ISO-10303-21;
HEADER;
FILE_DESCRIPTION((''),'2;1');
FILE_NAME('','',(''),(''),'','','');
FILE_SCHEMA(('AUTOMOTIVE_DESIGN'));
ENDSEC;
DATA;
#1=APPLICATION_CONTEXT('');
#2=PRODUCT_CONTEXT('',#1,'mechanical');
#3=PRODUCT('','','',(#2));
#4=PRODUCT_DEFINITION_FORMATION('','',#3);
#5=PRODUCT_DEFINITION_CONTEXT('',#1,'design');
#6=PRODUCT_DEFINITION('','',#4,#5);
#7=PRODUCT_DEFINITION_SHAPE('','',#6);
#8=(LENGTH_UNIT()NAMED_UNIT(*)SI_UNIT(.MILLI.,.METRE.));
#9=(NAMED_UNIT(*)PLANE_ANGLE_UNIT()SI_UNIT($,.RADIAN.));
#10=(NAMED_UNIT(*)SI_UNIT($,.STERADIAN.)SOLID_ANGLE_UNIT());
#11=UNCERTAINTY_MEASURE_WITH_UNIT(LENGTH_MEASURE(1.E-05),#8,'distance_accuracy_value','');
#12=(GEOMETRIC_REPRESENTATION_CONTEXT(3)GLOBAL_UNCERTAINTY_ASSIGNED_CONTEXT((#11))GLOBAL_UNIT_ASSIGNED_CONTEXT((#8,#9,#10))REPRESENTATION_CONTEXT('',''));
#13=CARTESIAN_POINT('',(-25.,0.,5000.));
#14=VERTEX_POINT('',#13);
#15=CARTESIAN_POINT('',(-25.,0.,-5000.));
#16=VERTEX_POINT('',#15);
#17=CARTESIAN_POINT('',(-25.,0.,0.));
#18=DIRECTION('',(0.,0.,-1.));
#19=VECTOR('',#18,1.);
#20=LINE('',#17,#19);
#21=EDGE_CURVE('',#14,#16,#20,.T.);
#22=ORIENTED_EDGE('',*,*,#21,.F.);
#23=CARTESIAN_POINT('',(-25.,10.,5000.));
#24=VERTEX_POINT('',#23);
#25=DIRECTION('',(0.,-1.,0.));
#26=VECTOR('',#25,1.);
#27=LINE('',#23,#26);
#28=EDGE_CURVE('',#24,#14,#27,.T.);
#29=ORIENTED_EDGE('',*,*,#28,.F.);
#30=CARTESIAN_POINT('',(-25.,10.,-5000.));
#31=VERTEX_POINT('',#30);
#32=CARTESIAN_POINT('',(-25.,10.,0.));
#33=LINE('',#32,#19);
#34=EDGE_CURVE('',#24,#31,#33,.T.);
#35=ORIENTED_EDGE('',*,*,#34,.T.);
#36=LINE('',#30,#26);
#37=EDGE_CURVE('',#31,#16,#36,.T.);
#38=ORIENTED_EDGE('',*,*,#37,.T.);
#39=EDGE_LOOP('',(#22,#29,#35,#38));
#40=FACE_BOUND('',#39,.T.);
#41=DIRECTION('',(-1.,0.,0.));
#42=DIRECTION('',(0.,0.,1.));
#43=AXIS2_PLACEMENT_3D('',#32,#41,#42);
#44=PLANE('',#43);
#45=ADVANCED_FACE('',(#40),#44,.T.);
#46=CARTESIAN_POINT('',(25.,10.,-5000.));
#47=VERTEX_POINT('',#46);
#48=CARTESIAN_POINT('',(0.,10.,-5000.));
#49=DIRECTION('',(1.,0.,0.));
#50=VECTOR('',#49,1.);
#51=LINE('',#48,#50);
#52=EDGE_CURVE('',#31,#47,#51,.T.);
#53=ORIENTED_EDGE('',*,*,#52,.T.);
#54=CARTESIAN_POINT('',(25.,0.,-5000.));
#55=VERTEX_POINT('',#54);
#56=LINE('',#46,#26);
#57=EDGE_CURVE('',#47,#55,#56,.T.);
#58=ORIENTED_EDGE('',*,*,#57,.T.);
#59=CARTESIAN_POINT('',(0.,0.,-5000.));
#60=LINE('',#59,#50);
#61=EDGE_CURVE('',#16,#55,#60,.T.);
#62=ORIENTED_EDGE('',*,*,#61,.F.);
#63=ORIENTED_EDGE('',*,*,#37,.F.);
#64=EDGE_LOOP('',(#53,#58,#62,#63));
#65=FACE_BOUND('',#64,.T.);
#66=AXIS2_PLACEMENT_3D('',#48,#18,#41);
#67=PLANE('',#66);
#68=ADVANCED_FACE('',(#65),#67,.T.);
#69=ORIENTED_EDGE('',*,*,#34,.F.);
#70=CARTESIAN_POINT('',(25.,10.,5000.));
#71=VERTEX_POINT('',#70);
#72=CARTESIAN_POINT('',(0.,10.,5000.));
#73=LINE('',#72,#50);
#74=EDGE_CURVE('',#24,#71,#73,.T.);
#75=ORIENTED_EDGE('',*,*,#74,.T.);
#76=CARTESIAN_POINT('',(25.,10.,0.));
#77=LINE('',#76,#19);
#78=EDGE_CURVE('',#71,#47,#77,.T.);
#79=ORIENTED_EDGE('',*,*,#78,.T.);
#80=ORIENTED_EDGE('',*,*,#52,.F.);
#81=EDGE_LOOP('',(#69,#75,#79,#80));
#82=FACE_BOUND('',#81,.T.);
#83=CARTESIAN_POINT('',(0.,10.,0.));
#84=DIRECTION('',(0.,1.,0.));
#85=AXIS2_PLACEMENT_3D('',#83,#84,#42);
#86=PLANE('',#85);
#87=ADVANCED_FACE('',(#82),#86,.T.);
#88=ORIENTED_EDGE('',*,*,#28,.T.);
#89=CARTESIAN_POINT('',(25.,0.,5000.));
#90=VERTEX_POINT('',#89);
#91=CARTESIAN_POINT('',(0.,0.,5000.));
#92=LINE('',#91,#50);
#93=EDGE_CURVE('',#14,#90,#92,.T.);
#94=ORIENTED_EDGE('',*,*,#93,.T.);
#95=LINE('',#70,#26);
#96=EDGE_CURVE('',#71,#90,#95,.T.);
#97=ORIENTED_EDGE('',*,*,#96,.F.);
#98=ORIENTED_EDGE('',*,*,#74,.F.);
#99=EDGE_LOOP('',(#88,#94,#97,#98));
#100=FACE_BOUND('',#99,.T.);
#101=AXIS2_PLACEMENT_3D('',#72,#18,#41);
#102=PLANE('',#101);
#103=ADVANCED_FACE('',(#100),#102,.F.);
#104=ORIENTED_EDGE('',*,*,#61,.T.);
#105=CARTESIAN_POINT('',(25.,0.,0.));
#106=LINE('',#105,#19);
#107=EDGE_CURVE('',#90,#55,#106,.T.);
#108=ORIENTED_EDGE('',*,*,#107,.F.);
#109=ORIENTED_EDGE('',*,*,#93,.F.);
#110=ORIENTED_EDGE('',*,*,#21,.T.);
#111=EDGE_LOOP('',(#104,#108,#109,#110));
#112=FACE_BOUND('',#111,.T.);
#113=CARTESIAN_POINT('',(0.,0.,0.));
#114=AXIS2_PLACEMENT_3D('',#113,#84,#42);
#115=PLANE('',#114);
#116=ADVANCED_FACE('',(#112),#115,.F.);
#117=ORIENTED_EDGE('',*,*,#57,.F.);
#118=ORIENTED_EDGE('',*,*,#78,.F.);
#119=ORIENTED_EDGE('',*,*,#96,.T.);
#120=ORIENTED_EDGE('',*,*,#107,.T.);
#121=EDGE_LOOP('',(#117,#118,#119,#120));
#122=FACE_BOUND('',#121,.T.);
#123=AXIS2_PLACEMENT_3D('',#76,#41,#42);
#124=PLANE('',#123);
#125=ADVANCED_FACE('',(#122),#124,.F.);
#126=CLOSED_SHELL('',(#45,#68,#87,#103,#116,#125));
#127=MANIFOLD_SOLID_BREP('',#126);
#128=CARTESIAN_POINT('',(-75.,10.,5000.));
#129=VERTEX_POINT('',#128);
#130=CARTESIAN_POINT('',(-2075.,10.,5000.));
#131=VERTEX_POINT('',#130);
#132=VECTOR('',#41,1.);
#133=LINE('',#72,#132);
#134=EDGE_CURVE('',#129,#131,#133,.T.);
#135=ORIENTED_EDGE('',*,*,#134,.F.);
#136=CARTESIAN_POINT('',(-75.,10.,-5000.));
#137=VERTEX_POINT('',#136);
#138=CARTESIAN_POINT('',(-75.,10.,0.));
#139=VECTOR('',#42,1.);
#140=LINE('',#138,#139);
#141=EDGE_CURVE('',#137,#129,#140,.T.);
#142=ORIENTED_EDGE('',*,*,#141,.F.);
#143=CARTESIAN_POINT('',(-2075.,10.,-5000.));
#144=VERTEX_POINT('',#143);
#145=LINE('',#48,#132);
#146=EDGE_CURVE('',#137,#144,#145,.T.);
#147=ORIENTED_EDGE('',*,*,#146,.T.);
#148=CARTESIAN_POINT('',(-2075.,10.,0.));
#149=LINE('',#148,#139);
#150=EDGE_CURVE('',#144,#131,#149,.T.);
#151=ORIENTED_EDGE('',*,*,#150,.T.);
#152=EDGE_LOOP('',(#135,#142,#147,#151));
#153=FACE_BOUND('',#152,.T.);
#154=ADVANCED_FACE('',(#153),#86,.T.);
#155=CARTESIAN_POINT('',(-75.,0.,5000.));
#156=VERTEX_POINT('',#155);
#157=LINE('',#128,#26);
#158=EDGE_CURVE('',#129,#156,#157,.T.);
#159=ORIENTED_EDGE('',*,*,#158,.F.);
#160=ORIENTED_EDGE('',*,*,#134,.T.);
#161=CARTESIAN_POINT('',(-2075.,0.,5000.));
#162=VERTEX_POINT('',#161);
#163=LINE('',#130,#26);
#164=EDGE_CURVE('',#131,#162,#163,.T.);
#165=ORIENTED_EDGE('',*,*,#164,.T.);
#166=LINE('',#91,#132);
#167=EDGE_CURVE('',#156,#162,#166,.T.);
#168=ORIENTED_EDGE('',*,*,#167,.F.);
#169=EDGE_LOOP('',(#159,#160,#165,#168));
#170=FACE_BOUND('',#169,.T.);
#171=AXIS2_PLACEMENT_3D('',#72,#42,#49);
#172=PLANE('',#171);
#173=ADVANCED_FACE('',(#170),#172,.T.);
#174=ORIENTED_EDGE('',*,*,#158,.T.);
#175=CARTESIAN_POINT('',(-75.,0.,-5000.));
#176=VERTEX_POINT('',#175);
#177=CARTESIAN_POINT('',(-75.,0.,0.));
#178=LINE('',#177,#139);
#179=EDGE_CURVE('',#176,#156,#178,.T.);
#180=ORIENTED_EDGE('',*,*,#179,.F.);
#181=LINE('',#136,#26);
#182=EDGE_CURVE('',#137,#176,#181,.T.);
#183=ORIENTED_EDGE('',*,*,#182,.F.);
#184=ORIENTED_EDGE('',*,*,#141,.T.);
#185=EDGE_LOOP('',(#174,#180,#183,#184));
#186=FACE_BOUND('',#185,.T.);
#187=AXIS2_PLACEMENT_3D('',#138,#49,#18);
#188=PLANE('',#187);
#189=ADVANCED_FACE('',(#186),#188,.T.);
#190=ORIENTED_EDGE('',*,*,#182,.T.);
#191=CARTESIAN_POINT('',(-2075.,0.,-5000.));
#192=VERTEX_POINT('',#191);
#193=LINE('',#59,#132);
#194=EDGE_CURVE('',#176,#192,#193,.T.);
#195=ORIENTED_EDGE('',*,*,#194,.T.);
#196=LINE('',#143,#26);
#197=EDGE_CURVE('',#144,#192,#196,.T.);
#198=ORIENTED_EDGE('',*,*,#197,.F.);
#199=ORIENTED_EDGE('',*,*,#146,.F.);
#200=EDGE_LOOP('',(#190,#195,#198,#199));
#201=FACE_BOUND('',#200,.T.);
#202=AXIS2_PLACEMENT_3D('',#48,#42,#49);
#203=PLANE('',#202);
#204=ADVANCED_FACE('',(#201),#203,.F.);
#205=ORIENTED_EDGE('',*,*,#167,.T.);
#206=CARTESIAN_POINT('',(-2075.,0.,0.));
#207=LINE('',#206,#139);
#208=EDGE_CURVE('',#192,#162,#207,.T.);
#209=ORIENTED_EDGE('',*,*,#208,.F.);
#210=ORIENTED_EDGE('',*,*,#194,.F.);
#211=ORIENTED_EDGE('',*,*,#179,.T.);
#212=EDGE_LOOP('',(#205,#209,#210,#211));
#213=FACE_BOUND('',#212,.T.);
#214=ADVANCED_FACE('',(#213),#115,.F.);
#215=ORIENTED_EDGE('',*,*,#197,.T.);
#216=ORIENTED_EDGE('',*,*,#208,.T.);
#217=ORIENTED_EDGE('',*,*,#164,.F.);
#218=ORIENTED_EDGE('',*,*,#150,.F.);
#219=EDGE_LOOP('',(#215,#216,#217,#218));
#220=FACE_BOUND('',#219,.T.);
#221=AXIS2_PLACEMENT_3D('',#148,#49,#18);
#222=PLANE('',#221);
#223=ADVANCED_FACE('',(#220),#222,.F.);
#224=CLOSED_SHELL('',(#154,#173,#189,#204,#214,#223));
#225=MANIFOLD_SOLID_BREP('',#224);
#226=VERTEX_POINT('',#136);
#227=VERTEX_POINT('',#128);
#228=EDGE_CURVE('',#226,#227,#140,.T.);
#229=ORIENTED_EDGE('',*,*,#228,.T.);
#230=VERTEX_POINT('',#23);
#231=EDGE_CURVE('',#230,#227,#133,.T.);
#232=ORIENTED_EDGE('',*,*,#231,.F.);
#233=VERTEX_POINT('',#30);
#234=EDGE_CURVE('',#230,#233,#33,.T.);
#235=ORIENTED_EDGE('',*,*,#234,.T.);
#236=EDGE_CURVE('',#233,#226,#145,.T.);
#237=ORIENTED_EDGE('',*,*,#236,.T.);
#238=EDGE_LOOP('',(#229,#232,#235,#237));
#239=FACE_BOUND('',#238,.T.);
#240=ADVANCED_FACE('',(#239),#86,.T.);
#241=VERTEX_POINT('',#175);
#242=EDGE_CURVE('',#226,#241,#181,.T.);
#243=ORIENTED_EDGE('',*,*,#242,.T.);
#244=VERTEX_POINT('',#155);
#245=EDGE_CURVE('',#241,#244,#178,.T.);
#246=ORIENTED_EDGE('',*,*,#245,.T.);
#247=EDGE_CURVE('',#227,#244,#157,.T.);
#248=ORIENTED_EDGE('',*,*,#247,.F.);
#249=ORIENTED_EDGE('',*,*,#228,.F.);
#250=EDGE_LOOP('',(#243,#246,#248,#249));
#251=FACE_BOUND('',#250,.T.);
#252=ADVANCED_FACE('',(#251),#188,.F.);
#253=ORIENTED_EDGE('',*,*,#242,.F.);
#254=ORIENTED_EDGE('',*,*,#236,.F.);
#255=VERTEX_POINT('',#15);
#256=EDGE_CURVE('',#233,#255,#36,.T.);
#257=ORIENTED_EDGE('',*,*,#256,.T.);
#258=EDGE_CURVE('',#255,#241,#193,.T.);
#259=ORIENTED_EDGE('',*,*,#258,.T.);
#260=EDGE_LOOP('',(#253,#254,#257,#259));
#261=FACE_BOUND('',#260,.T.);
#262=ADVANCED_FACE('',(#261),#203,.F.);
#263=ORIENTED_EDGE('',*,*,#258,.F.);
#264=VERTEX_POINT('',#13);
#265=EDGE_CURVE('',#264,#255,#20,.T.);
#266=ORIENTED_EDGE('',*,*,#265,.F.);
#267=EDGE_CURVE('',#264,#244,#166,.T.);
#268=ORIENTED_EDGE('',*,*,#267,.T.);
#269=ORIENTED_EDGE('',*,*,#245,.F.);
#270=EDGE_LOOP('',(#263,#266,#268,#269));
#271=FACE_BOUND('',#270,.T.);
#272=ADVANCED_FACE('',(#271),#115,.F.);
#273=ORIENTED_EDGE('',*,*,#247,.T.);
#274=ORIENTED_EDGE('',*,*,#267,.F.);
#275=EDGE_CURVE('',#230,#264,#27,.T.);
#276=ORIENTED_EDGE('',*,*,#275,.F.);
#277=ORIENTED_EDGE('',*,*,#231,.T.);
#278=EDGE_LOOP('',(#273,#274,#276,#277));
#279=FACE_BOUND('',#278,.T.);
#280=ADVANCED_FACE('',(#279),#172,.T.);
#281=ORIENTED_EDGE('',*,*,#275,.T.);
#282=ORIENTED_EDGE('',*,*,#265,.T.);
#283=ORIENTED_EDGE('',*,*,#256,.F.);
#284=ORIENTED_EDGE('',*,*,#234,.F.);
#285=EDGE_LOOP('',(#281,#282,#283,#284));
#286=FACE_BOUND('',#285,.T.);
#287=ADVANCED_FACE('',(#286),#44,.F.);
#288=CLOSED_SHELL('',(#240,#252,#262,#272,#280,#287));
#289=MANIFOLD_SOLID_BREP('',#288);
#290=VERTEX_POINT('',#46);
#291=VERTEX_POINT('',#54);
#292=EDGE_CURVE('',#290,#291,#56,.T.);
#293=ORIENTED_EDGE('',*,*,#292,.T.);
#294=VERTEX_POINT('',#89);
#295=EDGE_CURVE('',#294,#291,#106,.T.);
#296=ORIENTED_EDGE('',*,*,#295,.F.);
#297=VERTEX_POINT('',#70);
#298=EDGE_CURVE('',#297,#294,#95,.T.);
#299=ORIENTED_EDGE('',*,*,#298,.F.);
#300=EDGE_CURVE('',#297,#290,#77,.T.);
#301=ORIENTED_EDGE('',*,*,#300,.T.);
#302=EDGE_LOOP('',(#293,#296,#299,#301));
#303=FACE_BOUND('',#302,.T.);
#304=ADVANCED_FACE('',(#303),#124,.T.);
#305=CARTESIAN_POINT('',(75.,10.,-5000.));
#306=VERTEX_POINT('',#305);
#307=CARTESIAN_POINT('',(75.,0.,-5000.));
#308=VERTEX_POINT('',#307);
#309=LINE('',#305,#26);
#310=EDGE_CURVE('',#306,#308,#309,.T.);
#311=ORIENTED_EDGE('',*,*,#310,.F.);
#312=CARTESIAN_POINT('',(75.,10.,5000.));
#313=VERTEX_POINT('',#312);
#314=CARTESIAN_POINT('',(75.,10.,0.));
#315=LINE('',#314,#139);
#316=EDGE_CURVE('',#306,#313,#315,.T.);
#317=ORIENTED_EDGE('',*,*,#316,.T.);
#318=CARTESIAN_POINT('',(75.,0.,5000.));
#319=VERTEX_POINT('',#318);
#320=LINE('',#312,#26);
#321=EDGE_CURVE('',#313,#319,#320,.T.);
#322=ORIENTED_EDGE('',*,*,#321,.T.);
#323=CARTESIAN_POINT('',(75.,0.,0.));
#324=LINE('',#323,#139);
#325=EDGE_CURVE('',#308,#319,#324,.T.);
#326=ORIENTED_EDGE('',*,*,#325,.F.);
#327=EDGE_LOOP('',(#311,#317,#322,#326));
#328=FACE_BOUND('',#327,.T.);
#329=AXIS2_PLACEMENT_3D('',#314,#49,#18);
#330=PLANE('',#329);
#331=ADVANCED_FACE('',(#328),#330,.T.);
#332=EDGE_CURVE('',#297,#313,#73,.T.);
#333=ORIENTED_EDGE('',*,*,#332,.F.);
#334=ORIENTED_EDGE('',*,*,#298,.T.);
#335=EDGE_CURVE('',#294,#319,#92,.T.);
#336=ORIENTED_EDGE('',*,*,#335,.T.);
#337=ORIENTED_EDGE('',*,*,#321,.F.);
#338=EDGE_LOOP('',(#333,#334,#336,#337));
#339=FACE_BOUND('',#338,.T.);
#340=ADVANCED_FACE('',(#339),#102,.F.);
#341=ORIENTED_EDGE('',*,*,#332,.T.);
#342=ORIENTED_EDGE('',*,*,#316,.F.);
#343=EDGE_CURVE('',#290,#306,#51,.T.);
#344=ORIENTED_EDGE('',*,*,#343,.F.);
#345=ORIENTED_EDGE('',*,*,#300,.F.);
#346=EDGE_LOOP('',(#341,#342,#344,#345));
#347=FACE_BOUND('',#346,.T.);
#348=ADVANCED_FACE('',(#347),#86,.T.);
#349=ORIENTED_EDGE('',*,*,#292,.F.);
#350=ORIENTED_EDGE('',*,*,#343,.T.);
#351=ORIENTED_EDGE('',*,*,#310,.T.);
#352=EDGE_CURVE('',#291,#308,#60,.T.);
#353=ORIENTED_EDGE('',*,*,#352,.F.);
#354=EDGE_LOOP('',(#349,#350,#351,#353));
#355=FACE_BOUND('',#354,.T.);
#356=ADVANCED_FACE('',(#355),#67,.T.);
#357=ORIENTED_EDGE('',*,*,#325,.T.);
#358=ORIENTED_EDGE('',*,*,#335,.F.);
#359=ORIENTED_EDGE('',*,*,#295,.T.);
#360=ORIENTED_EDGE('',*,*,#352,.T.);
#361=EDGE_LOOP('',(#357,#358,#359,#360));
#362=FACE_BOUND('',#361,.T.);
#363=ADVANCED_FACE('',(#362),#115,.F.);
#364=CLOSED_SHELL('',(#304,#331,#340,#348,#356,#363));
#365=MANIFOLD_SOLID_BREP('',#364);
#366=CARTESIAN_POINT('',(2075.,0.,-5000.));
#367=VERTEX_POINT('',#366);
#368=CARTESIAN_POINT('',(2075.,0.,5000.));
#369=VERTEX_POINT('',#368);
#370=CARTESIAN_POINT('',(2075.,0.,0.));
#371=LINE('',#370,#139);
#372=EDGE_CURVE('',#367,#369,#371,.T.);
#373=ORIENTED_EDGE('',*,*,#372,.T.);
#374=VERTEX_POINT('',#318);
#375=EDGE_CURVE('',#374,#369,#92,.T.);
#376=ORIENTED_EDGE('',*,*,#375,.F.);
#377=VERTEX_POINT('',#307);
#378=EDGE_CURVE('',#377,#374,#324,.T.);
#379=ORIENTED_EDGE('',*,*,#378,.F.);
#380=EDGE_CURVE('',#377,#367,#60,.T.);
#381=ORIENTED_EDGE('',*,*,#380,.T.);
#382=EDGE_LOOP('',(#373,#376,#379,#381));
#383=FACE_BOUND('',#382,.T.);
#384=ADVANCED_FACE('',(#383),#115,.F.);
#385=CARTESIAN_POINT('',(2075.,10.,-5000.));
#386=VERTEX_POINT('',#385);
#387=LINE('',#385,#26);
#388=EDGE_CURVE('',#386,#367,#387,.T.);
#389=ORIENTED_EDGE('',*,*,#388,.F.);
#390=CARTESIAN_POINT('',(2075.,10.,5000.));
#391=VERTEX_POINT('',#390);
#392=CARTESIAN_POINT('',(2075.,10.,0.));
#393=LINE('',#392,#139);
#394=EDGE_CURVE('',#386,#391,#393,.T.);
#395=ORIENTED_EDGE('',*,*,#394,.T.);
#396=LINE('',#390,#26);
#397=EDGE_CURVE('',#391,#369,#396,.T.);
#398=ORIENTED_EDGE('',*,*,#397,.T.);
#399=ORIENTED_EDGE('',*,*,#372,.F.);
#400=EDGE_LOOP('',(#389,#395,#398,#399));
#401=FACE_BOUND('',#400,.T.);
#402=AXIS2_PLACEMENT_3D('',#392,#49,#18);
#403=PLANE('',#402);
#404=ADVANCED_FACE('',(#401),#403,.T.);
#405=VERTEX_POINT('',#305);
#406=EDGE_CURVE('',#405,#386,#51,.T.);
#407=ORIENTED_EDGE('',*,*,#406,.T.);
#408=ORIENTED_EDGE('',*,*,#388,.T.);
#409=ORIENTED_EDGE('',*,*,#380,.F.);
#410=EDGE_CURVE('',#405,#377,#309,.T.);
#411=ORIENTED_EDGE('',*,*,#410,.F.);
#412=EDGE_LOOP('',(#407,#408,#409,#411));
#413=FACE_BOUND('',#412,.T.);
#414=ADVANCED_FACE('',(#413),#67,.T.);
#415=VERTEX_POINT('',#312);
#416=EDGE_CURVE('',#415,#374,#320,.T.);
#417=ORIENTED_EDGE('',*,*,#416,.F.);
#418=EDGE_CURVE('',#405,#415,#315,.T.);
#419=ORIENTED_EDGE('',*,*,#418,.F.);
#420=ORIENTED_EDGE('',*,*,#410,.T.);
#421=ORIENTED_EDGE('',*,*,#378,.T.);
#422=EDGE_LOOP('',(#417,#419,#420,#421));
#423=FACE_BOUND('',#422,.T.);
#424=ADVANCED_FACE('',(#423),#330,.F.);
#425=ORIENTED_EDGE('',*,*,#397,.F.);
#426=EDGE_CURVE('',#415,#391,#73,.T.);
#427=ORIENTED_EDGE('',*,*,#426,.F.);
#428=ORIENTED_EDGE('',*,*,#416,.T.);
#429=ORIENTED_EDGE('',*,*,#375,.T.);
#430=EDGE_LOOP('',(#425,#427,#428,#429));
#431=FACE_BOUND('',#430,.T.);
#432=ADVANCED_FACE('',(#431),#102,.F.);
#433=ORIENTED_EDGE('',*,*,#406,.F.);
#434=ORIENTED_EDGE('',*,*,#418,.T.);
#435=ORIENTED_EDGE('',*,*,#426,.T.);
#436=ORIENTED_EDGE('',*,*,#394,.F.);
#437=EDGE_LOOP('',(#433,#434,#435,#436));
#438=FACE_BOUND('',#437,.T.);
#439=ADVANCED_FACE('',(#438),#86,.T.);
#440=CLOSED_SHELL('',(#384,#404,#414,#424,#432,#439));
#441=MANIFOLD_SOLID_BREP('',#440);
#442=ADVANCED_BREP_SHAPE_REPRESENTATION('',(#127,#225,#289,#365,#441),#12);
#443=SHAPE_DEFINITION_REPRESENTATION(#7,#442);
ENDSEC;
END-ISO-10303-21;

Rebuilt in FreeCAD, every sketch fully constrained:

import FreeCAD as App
import Part
import Sketcher

V = App.Vector


def add_polygon(sketch, points):
    """Adds a closed chain of lines whose ends are joined by coincident constraints."""
    first, n = sketch.GeometryCount, len(points)
    for a, b in zip(points, points[1:] + points[:1]):
        sketch.addGeometry(Part.LineSegment(App.Vector(*a, 0), App.Vector(*b, 0)), False)
    for i in range(n):
        sketch.addConstraint(Sketcher.Constraint("Coincident", first + i, 2, first + (i + 1) % n, 1))

doc = App.newDocument("Part")
body = doc.addObject("PartDesign::Body", "Body")

# Sketch on XZ plane
sketch1 = body.newObject("Sketcher::SketchObject", "Sketch")
sketch1.AttachmentSupport = (doc.getObject("XZ_Plane"), [""])
sketch1.MapMode = "FlatFace"
add_polygon(sketch1, [(-25, -5000), (-25, 5000), (25, 5000), (25, -5000)])  # lines 0-3
sketch1.addConstraint(Sketcher.Constraint("Vertical", 0))
sketch1.addConstraint(Sketcher.Constraint("Horizontal", 1))
sketch1.addConstraint(Sketcher.Constraint("Vertical", 2))
sketch1.addConstraint(Sketcher.Constraint("Horizontal", 3))
sketch1.addConstraint(Sketcher.Constraint("Symmetric", 0, 2, 2, 2, -1, 1))
sketch1.addConstraint(Sketcher.Constraint("DistanceX", 1, 1, 1, 2, 50.0))
sketch1.addConstraint(Sketcher.Constraint("DistanceY", 0, 1, 0, 2, 10000.0))
pad1 = body.newObject("PartDesign::Pad", "Pad")
pad1.Profile = sketch1
pad1.Length = 10
pad1.Reversed = True
body2 = doc.addObject("PartDesign::Body", "Body001")

# Sketch on XZ plane
sketch2 = body2.newObject("Sketcher::SketchObject", "Sketch001")
sketch2.AttachmentSupport = (doc.getObject("XZ_Plane001"), [""])
sketch2.MapMode = "FlatFace"
add_polygon(sketch2, [(-75, -5000), (-75, 5000), (-25, 5000), (-25, -5000)])  # lines 0-3
sketch2.addConstraint(Sketcher.Constraint("Vertical", 0))
sketch2.addConstraint(Sketcher.Constraint("Horizontal", 1))
sketch2.addConstraint(Sketcher.Constraint("Vertical", 2))
sketch2.addConstraint(Sketcher.Constraint("Horizontal", 3))
sketch2.addConstraint(Sketcher.Constraint("DistanceX", 1, 1, 1, 2, 50.0))
sketch2.addConstraint(Sketcher.Constraint("DistanceY", 0, 1, 0, 2, 10000.0))
sketch2.addConstraint(Sketcher.Constraint("DistanceX", 0, 2, -1, 1, 75.0))
sketch2.addConstraint(Sketcher.Constraint("DistanceY", -1, 1, 0, 2, 5000.0))
pad2 = body2.newObject("PartDesign::Pad", "Pad001")
pad2.Profile = sketch2
pad2.Length = 10
pad2.Reversed = True
body3 = doc.addObject("PartDesign::Body", "Body002")

# Sketch on XZ plane
sketch3 = body3.newObject("Sketcher::SketchObject", "Sketch002")
sketch3.AttachmentSupport = (doc.getObject("XZ_Plane002"), [""])
sketch3.MapMode = "FlatFace"
add_polygon(sketch3, [(25, -5000), (25, 5000), (75, 5000), (75, -5000)])  # lines 0-3
sketch3.addConstraint(Sketcher.Constraint("Vertical", 0))
sketch3.addConstraint(Sketcher.Constraint("Horizontal", 1))
sketch3.addConstraint(Sketcher.Constraint("Vertical", 2))
sketch3.addConstraint(Sketcher.Constraint("Horizontal", 3))
sketch3.addConstraint(Sketcher.Constraint("DistanceX", 1, 1, 1, 2, 50.0))
sketch3.addConstraint(Sketcher.Constraint("DistanceY", 0, 1, 0, 2, 10000.0))
sketch3.addConstraint(Sketcher.Constraint("DistanceX", -1, 1, 0, 2, 25.0))
sketch3.addConstraint(Sketcher.Constraint("DistanceY", -1, 1, 0, 2, 5000.0))
pad3 = body3.newObject("PartDesign::Pad", "Pad002")
pad3.Profile = sketch3
pad3.Length = 10
pad3.Reversed = True
body4 = doc.addObject("PartDesign::Body", "Body003")

# Sketch on XZ plane
sketch4 = body4.newObject("Sketcher::SketchObject", "Sketch003")
sketch4.AttachmentSupport = (doc.getObject("XZ_Plane003"), [""])
sketch4.MapMode = "FlatFace"
add_polygon(sketch4, [(-2075, -5000), (-2075, 5000), (-75, 5000), (-75, -5000)])  # lines 0-3
sketch4.addConstraint(Sketcher.Constraint("Vertical", 0))
sketch4.addConstraint(Sketcher.Constraint("Horizontal", 1))
sketch4.addConstraint(Sketcher.Constraint("Vertical", 2))
sketch4.addConstraint(Sketcher.Constraint("Horizontal", 3))
sketch4.addConstraint(Sketcher.Constraint("DistanceX", 1, 1, 1, 2, 2000.0))
sketch4.addConstraint(Sketcher.Constraint("DistanceY", 0, 1, 0, 2, 10000.0))
sketch4.addConstraint(Sketcher.Constraint("DistanceX", 0, 2, -1, 1, 2075.0))
sketch4.addConstraint(Sketcher.Constraint("DistanceY", -1, 1, 0, 2, 5000.0))
pad4 = body4.newObject("PartDesign::Pad", "Pad003")
pad4.Profile = sketch4
pad4.Length = 10
pad4.Reversed = True
body5 = doc.addObject("PartDesign::Body", "Body004")

# Sketch on XZ plane
sketch5 = body5.newObject("Sketcher::SketchObject", "Sketch004")
sketch5.AttachmentSupport = (doc.getObject("XZ_Plane004"), [""])
sketch5.MapMode = "FlatFace"
add_polygon(sketch5, [(75, -5000), (75, 5000), (2075, 5000), (2075, -5000)])  # lines 0-3
sketch5.addConstraint(Sketcher.Constraint("Vertical", 0))
sketch5.addConstraint(Sketcher.Constraint("Horizontal", 1))
sketch5.addConstraint(Sketcher.Constraint("Vertical", 2))
sketch5.addConstraint(Sketcher.Constraint("Horizontal", 3))
sketch5.addConstraint(Sketcher.Constraint("DistanceX", 1, 1, 1, 2, 2000.0))
sketch5.addConstraint(Sketcher.Constraint("DistanceY", 0, 1, 0, 2, 10000.0))
sketch5.addConstraint(Sketcher.Constraint("DistanceX", -1, 1, 0, 2, 75.0))
sketch5.addConstraint(Sketcher.Constraint("DistanceY", -1, 1, 0, 2, 5000.0))
pad5 = body5.newObject("PartDesign::Pad", "Pad004")
pad5.Profile = sketch5
pad5.Length = 10
pad5.Reversed = True

doc.recompute()
